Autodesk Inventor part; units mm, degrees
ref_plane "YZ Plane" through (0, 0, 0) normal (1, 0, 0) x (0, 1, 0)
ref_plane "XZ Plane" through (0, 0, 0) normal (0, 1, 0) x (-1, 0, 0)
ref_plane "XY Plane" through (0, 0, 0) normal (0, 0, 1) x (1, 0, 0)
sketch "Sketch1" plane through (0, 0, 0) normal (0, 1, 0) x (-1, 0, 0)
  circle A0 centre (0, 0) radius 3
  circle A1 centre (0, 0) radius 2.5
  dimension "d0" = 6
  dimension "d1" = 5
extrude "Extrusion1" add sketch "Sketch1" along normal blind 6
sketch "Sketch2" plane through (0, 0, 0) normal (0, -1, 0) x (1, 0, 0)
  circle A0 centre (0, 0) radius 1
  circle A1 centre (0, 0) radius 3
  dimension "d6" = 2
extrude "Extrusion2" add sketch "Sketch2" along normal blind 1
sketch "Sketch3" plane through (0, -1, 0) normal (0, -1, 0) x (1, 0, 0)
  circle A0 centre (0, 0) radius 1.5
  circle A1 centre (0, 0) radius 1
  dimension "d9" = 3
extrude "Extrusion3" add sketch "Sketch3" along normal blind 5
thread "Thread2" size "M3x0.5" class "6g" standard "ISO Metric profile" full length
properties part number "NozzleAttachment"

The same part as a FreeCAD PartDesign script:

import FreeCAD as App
import Part
import Sketcher
from FreeCAD import Vector
Q = App.Units.Quantity

doc = App.newDocument("Part")
body = doc.addObject("PartDesign::Body", "Body")

# Sketch on XZ plane
sketch1 = body.newObject("Sketcher::SketchObject", "Sketch")
sketch1.AttachmentSupport = (doc.getObject("XZ_Plane"), [""])
sketch1.MapMode = "FlatFace"
sketch1.addGeometry([
    Part.Circle(Vector(0, 0, 0), Vector(0, 0, 1), 3),
    Part.Circle(Vector(0, 0, 0), Vector(0, 0, 1), 2.5),
], False)
sketch1.addConstraint([
    Sketcher.Constraint("Coincident", 0, 3, -1, 1),
    Sketcher.Constraint("Coincident", 1, 3, -1, 1),
    Sketcher.Constraint("Diameter", 0, Q("6 mm")),
    Sketcher.Constraint("Diameter", 1, Q("5 mm")),
])
pad1 = body.newObject("PartDesign::Pad", "Pad")
pad1.Profile = sketch1
pad1.Length = 6
pad1.Reversed = True

# Sketch on XZ plane
sketch2 = body.newObject("Sketcher::SketchObject", "Sketch001")
sketch2.AttachmentSupport = (doc.getObject("XZ_Plane"), [""])
sketch2.MapMode = "FlatFace"
sketch2.addGeometry([
    Part.Circle(Vector(0, 0, 0), Vector(0, 0, 1), 3),
    Part.Circle(Vector(0, 0, 0), Vector(0, 0, 1), 1),
], False)
sketch2.addConstraint([
    Sketcher.Constraint("Coincident", 0, 3, -1, 1),
    Sketcher.Constraint("Coincident", 1, 3, -1, 1),
    Sketcher.Constraint("Diameter", 1, Q("2 mm")),
    Sketcher.Constraint("Diameter", 0, Q("6 mm")),
])
pad2 = body.newObject("PartDesign::Pad", "Pad001")
pad2.Profile = sketch2
pad2.Length = 1

# Sketch on XZ plane
sketch3 = body.newObject("Sketcher::SketchObject", "Sketch002")
sketch3.AttachmentSupport = (doc.getObject("XZ_Plane"), [""])
sketch3.MapMode = "FlatFace"
sketch3.AttachmentOffset = App.Placement(Vector(0, 0, 1), App.Rotation())
sketch3.addGeometry([
    Part.Circle(Vector(0, 0, 0), Vector(0, 0, 1), 1.5),
    Part.Circle(Vector(0, 0, 0), Vector(0, 0, 1), 1),
], False)
sketch3.addConstraint([
    Sketcher.Constraint("Coincident", 0, 3, -1, 1),
    Sketcher.Constraint("Coincident", 1, 3, -1, 1),
    Sketcher.Constraint("Diameter", 0, Q("3 mm")),
    Sketcher.Constraint("Diameter", 1, Q("2 mm")),
])
pad3 = body.newObject("PartDesign::Pad", "Pad002")
pad3.Profile = sketch3
pad3.Length = 5

doc.recompute()
